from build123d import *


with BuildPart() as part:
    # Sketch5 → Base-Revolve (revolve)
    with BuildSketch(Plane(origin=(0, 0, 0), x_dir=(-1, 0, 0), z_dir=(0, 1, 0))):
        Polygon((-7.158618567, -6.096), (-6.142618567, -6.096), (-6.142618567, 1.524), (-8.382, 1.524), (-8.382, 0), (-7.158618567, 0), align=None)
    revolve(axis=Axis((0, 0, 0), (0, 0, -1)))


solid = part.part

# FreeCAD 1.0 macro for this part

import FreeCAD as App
import Part
import Sketcher
from FreeCAD import Vector
Q = App.Units.Quantity

doc = App.newDocument("Part")
params = doc.addObject("Spreadsheet::Sheet", "Params")
for row, (alias, value) in enumerate([
    ("sketch1_height", "0.3 in"),
    ("sketch1_width", "0.04 in"),
    ("sketch1_height2", "0.06 in"),
    ("revolution_angle", "360 deg"),
], start=1):
    params.set(f"A{row}", alias)
    params.set(f"B{row}", "=" + value)
    params.setAlias(f"B{row}", alias)

body = doc.addObject("PartDesign::Body", "Body")

# Sketch on XZ plane
sketch1 = body.newObject("Sketcher::SketchObject", "Sketch")
sketch1.AttachmentSupport = (doc.getObject("XZ_Plane"), [""])
sketch1.MapMode = "FlatFace"
sketch1.addGeometry(Part.LineSegment(Vector(7.2, -6.1, 0), Vector(6.1, -6.1, 0)), False)
sketch1.addGeometry(Part.LineSegment(Vector(6.1, -6.1, 0), Vector(6.1, 1.5, 0)), False)
sketch1.addGeometry(Part.LineSegment(Vector(6.1, 1.5, 0), Vector(8.4, 1.5, 0)), False)
sketch1.addGeometry(Part.LineSegment(Vector(8.4, 1.5, 0), Vector(8.4, 0, 0)), False)
sketch1.addGeometry(Part.LineSegment(Vector(8.4, 0, 0), Vector(7.2, 0, 0)), False)
sketch1.addGeometry(Part.LineSegment(Vector(7.2, 0, 0), Vector(7.2, -6.1, 0)), False)
sketch1.addConstraint(Sketcher.Constraint("Coincident", 0, 2, 1, 1))
sketch1.addConstraint(Sketcher.Constraint("Coincident", 1, 2, 2, 1))
sketch1.addConstraint(Sketcher.Constraint("Coincident", 2, 2, 3, 1))
sketch1.addConstraint(Sketcher.Constraint("Coincident", 3, 2, 4, 1))
sketch1.addConstraint(Sketcher.Constraint("Coincident", 4, 2, 5, 1))
sketch1.addConstraint(Sketcher.Constraint("Coincident", 5, 2, 0, 1))
sketch1.addConstraint(Sketcher.Constraint("Horizontal", 0))
sketch1.addConstraint(Sketcher.Constraint("Vertical", 1))
sketch1.addConstraint(Sketcher.Constraint("Horizontal", 2))
sketch1.addConstraint(Sketcher.Constraint("Vertical", 3))
sketch1.addConstraint(Sketcher.Constraint("Horizontal", 4))
sketch1.addConstraint(Sketcher.Constraint("Vertical", 5))
sketch1.addConstraint(Sketcher.Constraint("PointOnObject", 3, 2, -1))
sketch1.addConstraint(Sketcher.Constraint("DistanceY", 1, 1, 1, 2, Q("0.3 in")))
sketch1.addConstraint(Sketcher.Constraint("DistanceX", 0, 2, 0, 1, Q("0.04 in")))
sketch1.addConstraint(Sketcher.Constraint("DistanceY", 3, 2, 3, 1, Q("0.06 in")))
sketch1.addConstraint(Sketcher.Constraint("DistanceX", -1, 1, 2, 2, Q("0.33 in")))
sketch1.addConstraint(Sketcher.Constraint("DistanceX", 2, 1, 2, 2, Q("2.239381 mm")))
sketch1.setExpression("Constraints[13]", "Params.sketch1_height")
sketch1.setExpression("Constraints[14]", "Params.sketch1_width")
sketch1.setExpression("Constraints[15]", "Params.sketch1_height2")
revolution = body.newObject("PartDesign::Revolution", "Revolution")
revolution.Profile = sketch1
revolution.ReferenceAxis = (sketch1, ["V_Axis"])
revolution.setExpression("Angle", "Params.revolution_angle")

doc.recompute()
